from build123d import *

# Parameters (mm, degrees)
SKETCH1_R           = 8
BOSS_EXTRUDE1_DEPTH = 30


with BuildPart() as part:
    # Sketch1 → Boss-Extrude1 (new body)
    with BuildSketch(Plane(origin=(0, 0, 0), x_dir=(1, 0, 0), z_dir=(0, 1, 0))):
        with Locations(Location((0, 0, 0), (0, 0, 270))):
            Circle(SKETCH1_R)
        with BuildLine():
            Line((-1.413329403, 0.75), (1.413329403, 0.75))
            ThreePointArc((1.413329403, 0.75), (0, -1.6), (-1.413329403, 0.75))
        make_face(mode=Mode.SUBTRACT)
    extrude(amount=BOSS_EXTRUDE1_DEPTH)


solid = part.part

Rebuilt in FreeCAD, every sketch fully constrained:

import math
import FreeCAD as App
import Part
import Sketcher
Q = App.Units.Quantity

doc = App.newDocument("Part")
body = doc.addObject("PartDesign::Body", "Body")

sketch1 = body.newObject("Sketcher::SketchObject", "Sketch")
sketch1.AttachmentSupport = (doc.getObject("XZ_Plane"), [""])
sketch1.MapMode = "FlatFace"
sketch1.addGeometry([
    Part.Circle(App.Vector(0, 0, 0), App.Vector(0, 0, 1), 8),
    Part.ArcOfCircle(Part.Circle(App.Vector(0, 0, 0), App.Vector(0, 0, 1), 1.6), math.radians(-28), math.radians(208)),
    Part.LineSegment(App.Vector(-1.4, -0.8, 0), App.Vector(1.4, -0.8, 0)),
], False)
sketch1.addConstraint([
    Sketcher.Constraint("Coincident", 1, 1, 2, 2),
    Sketcher.Constraint("Coincident", 2, 1, 1, 2),
    Sketcher.Constraint("Horizontal", 2),
    Sketcher.Constraint("Coincident", 0, 3, -1, 1),
    Sketcher.Constraint("Coincident", 1, 3, -1, 1),
    Sketcher.Constraint("Diameter", 0, Q("16 mm")),
    Sketcher.Constraint("Radius", 1, Q("1.6 mm")),
    Sketcher.Constraint("DistanceY", 1, 1, -1, 1, Q("0.75 mm")),
])
pad1 = body.newObject("PartDesign::Pad", "Pad")
pad1.Profile = sketch1
pad1.Length = 30
pad1.Reversed = True

doc.recompute()
